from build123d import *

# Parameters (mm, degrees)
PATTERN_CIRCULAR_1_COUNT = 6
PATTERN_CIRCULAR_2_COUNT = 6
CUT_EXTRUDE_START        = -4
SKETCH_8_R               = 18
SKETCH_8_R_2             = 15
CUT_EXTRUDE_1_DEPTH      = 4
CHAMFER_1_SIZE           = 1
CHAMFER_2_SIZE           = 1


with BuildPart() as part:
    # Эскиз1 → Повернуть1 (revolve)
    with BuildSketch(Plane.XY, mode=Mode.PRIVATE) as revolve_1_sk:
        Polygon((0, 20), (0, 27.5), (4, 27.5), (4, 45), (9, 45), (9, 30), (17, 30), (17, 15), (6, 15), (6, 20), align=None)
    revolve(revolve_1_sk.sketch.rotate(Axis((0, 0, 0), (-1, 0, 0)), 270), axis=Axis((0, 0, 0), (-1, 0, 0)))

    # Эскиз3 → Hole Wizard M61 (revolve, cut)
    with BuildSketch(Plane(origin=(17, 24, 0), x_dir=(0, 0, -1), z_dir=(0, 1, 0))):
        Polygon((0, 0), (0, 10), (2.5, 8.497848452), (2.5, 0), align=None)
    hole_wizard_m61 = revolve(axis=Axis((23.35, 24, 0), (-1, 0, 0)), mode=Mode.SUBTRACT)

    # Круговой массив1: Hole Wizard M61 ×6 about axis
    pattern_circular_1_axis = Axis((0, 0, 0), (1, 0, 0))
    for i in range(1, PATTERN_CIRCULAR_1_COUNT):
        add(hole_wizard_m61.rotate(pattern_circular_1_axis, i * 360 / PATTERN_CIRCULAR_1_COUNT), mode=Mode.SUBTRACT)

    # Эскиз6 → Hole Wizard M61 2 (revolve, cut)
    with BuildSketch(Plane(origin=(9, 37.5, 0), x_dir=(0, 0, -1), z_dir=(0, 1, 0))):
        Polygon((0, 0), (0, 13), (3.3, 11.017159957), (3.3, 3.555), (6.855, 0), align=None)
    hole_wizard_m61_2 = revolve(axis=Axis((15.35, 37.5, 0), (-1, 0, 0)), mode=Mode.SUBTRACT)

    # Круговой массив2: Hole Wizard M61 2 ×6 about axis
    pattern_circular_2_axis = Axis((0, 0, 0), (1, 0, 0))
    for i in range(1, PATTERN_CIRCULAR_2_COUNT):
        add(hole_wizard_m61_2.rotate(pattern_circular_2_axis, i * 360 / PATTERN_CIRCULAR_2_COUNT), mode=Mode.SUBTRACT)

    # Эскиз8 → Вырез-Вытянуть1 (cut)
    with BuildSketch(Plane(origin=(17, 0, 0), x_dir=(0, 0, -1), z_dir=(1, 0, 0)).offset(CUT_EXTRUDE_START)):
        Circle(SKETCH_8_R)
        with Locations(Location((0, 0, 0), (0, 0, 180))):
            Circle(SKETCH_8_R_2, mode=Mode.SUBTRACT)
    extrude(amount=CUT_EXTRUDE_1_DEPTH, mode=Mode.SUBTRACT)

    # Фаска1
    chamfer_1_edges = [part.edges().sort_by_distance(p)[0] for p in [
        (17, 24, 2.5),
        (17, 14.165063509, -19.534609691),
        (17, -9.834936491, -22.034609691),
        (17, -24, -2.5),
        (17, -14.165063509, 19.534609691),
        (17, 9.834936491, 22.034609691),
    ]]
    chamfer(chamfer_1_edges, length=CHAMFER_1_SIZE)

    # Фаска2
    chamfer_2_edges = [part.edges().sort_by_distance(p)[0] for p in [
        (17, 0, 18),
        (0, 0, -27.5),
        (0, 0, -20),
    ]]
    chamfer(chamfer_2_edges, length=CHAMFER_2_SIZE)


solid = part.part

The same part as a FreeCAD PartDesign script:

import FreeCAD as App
import Part
import Sketcher

V = App.Vector
Q = App.Units.Quantity


def edges_at(feature, points):
    """Names of the edges that pass closest to the given points."""
    edges = feature.Shape.Edges
    near = lambda p: min(range(len(edges)), key=lambda i: edges[i].distToShape(Part.Vertex(*p))[0])
    return sorted({f"Edge{near(p) + 1}" for p in points})


def add_polygon(sketch, points):
    """Adds a closed chain of lines whose ends are joined by coincident constraints."""
    first, n = sketch.GeometryCount, len(points)
    for a, b in zip(points, points[1:] + points[:1]):
        sketch.addGeometry(Part.LineSegment(App.Vector(*a, 0), App.Vector(*b, 0)), False)
    for i in range(n):
        sketch.addConstraint(Sketcher.Constraint("Coincident", first + i, 2, first + (i + 1) % n, 1))

doc = App.newDocument("Part")
body = doc.addObject("PartDesign::Body", "Body")

# Sketch on XY plane
sketch1 = body.newObject("Sketcher::SketchObject", "Sketch")
sketch1.AttachmentSupport = (doc.getObject("XY_Plane"), [""])
sketch1.MapMode = "FlatFace"
add_polygon(sketch1, [(0, 27.5), (0, 20), (6, 20), (6, 15), (17, 15), (17, 30), (9, 30), (9, 45), (4, 45), (4, 27.5)])  # lines 0-9
sketch1.addConstraint([
    Sketcher.Constraint("Vertical", 0),
    Sketcher.Constraint("Horizontal", 1),
    Sketcher.Constraint("Vertical", 2),
    Sketcher.Constraint("Horizontal", 3),
    Sketcher.Constraint("Vertical", 4),
    Sketcher.Constraint("Horizontal", 5),
    Sketcher.Constraint("Vertical", 6),
    Sketcher.Constraint("Horizontal", 7),
    Sketcher.Constraint("Vertical", 8),
    Sketcher.Constraint("Horizontal", 9),
    Sketcher.Constraint("PointOnObject", 0, 2, -2),
    Sketcher.Constraint("Equal", 7, 2),
    Sketcher.Constraint("Equal", 4, 6),
    Sketcher.Constraint("DistanceX", 1, 1, 1, 2, 6.0),
    Sketcher.Constraint("DistanceX", 3, 1, 3, 2, 11.0),
    Sketcher.Constraint("DistanceX", 5, 2, 5, 1, 8.0),
    Sketcher.Constraint("DistanceX", 7, 2, 7, 1, 5.0),
    Sketcher.Constraint("DistanceY", 4, 1, 4, 2, 15.0),
    Sketcher.Constraint("DistanceY", 0, 2, 0, 1, 7.5),
    Sketcher.Constraint("DistanceY", -1, 1, 0, 2, 20.0),
])
revolution = body.newObject("PartDesign::Revolution", "Revolution")
revolution.Profile = sketch1
revolution.ReferenceAxis = (sketch1, ["H_Axis"])
revolution.Angle = 360

# Sketch on XZ plane
sketch2 = body.newObject("Sketcher::SketchObject", "Sketch001")
sketch2.AttachmentSupport = (doc.getObject("XZ_Plane"), [""])
sketch2.MapMode = "FlatFace"
sketch2.AttachmentOffset = App.Placement(V(0, 0, -24), App.Rotation())
add_polygon(sketch2, [(7, 0), (17, 0), (17, -2.5), (8.5, -2.5)])  # lines 0-3
sketch2.addConstraint([
    Sketcher.Constraint("Horizontal", 0),
    Sketcher.Constraint("Vertical", 1),
    Sketcher.Constraint("Horizontal", 2),
    Sketcher.Constraint("PointOnObject", 0, 2, -1),
    Sketcher.Constraint("DistanceX", 0, 1, 0, 2, 10.0),
    Sketcher.Constraint("Angle", 3, Q("121 deg")),
    Sketcher.Constraint("DistanceY", 1, 2, 1, 1, 2.5),
    Sketcher.Constraint("DistanceX", -1, 1, 0, 2, 17.0),
])
groove = body.newObject("PartDesign::Groove", "Groove")
groove.Profile = sketch2
groove.ReferenceAxis = (sketch2, ["H_Axis"])
groove.Angle = 360
doc.recompute()

polarpattern = body.newObject("PartDesign::PolarPattern", "PolarPattern")
polarpattern.Originals = [groove]
polarpattern.Axis = (doc.getObject("X_Axis"), [""])
polarpattern.Angle = 360
polarpattern.Occurrences = 6
body.Tip = polarpattern

# Sketch on XZ plane
sketch3 = body.newObject("Sketcher::SketchObject", "Sketch002")
sketch3.AttachmentSupport = (doc.getObject("XZ_Plane"), [""])
sketch3.MapMode = "FlatFace"
sketch3.AttachmentOffset = App.Placement(V(0, 0, -37.5), App.Rotation())
add_polygon(sketch3, [(-4, 0), (9, 0), (9, -6.9), (5.4, -3.3), (-2, -3.3)])  # lines 0-4
sketch3.addConstraint([
    Sketcher.Constraint("Horizontal", 0),
    Sketcher.Constraint("Vertical", 1),
    Sketcher.Constraint("Horizontal", 3),
    Sketcher.Constraint("PointOnObject", 0, 2, -1),
    Sketcher.Constraint("DistanceX", 0, 1, 0, 2, 13.0),
    Sketcher.Constraint("Angle", 2, Q("135 deg")),
    Sketcher.Constraint("Angle", 4, Q("121 deg")),
    Sketcher.Constraint("DistanceX", -1, 1, 0, 2, 9.0),
    Sketcher.Constraint("DistanceY", 2, 2, -1, 1, 3.3),
    Sketcher.Constraint("DistanceY", 1, 2, 1, 1, 6.855),
])
groove2 = body.newObject("PartDesign::Groove", "Groove001")
groove2.Profile = sketch3
groove2.ReferenceAxis = (sketch3, ["H_Axis"])
groove2.Angle = 360
doc.recompute()

polarpattern2 = body.newObject("PartDesign::PolarPattern", "PolarPattern001")
polarpattern2.Originals = [groove2]
polarpattern2.Axis = (doc.getObject("X_Axis"), [""])
polarpattern2.Angle = 360
polarpattern2.Occurrences = 6
body.Tip = polarpattern2

# Sketch on YZ plane
sketch4 = body.newObject("Sketcher::SketchObject", "Sketch003")
sketch4.AttachmentSupport = (doc.getObject("YZ_Plane"), [""])
sketch4.MapMode = "FlatFace"
sketch4.AttachmentOffset = App.Placement(V(0, 0, 13), App.Rotation())
sketch4.addGeometry([
    Part.Circle(V(0, 0, 0), V(0, 0, 1), 18),
    Part.Circle(V(0, 0, 0), V(0, 0, 1), 15),
], False)
sketch4.addConstraint([
    Sketcher.Constraint("Coincident", 0, 3, -1, 1),
    Sketcher.Constraint("Coincident", 1, 3, -1, 1),
    Sketcher.Constraint("Diameter", 0, 36.0),
    Sketcher.Constraint("Diameter", 1, 30.0),
])
pocket1 = body.newObject("PartDesign::Pocket", "Pocket")
pocket1.Profile = sketch4
pocket1.Length = 4
pocket1.Reversed = True
doc.recompute()

chamfer = body.newObject("PartDesign::Chamfer", "Chamfer")
chamfer.Base = (pocket1, edges_at(pocket1, [
    (17, 24, 2.5),
    (17, 14.165, -19.535),
    (17, -9.835, -22.035),
    (17, -24, -2.5),
    (17, -14.165, 19.535),
    (17, 9.835, 22.035),
]))
chamfer.Size = 1
doc.recompute()

chamfer2 = body.newObject("PartDesign::Chamfer", "Chamfer001")
chamfer2.Base = (chamfer, edges_at(chamfer, [(17, 0, 18), (0, 0, -27.5), (0, 0, -20)]))
chamfer2.Size = 1

doc.recompute()
